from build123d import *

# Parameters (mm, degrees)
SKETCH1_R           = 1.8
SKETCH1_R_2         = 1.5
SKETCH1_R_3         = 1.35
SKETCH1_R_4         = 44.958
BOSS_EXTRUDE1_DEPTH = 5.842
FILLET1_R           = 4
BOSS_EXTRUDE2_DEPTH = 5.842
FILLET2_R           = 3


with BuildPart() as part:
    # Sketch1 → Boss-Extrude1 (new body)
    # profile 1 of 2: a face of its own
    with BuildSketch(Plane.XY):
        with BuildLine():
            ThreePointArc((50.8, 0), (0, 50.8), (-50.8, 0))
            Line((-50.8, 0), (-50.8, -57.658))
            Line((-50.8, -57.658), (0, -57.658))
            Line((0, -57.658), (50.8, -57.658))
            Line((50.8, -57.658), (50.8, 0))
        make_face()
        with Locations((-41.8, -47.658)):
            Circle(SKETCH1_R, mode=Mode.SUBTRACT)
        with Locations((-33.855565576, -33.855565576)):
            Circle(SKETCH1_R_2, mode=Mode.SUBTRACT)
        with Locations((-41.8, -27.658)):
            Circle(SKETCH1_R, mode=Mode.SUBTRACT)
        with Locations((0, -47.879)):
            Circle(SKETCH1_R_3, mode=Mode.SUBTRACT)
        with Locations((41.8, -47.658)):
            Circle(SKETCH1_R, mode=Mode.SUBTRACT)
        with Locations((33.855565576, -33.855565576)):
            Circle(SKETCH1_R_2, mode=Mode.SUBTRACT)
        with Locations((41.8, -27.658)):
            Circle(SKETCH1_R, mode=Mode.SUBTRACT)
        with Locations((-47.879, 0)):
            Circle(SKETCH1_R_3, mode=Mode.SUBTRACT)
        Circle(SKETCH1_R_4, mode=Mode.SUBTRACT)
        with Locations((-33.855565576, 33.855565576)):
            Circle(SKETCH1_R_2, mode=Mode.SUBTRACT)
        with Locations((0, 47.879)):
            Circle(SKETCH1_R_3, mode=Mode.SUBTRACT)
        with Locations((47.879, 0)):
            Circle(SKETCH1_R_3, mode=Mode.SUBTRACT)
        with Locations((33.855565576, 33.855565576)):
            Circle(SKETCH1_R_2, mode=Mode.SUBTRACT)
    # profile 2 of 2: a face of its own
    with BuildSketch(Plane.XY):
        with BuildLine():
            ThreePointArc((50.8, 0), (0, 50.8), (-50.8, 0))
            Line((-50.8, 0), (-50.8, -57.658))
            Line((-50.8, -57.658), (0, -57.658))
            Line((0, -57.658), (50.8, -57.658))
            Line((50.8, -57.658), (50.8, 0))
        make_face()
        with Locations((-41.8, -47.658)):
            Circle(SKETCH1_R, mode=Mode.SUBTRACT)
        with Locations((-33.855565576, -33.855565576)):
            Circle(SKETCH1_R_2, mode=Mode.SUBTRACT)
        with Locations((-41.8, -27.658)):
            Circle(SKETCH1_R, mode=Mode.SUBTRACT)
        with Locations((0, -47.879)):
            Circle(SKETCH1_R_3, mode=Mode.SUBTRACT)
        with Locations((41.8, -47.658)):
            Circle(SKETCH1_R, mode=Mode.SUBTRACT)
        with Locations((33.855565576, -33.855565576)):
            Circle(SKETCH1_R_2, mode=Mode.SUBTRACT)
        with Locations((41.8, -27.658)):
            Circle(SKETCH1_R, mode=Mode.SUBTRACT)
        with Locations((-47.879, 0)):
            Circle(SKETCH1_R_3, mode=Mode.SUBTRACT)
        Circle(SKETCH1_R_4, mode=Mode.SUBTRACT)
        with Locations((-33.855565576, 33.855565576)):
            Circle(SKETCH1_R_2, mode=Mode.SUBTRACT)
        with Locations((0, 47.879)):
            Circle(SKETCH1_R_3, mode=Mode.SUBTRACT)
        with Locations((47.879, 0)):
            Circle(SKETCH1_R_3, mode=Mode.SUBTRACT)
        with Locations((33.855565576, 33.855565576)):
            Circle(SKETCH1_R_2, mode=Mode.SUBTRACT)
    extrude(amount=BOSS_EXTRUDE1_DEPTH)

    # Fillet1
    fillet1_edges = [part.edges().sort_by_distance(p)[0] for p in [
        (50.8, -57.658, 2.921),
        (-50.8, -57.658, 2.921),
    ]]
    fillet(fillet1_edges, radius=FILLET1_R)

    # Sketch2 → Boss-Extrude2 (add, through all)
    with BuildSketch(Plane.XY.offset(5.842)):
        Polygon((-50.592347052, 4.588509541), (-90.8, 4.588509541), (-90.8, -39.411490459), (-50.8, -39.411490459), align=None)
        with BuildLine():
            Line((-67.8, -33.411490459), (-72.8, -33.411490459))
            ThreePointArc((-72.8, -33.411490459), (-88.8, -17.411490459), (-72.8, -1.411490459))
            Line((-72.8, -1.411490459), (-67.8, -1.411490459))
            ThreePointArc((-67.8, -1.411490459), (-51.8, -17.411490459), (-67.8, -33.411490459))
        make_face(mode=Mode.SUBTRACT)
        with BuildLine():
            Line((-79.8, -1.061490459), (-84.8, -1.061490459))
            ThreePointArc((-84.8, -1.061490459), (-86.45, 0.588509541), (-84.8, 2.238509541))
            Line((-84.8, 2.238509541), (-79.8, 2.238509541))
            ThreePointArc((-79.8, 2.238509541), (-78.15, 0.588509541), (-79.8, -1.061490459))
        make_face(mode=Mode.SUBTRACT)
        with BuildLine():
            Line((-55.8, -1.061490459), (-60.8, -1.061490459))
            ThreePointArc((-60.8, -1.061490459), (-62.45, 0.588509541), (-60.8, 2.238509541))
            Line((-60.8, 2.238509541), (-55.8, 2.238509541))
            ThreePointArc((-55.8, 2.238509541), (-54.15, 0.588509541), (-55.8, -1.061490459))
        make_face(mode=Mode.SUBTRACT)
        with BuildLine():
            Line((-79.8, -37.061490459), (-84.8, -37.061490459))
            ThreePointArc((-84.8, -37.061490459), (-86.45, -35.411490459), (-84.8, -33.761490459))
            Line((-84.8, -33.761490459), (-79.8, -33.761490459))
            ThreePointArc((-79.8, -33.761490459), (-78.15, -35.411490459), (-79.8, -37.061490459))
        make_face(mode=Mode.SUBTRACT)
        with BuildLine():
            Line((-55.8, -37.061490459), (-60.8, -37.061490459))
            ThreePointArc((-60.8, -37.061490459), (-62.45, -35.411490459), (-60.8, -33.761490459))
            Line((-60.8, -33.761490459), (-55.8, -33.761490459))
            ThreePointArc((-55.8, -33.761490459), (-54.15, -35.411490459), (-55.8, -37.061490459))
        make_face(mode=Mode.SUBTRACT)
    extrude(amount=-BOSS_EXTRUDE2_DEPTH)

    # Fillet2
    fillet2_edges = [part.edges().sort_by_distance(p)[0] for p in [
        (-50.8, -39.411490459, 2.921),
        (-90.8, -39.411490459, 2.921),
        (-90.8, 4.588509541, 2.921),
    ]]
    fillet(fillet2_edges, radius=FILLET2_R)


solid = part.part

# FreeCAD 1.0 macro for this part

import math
import FreeCAD as App
import Part
import Sketcher
from FreeCAD import Vector
Q = App.Units.Quantity


def edges_at(feature, points):
    """Names of the edges that pass closest to the given points."""
    edges = feature.Shape.Edges
    near = lambda p: min(range(len(edges)), key=lambda i: edges[i].distToShape(Part.Vertex(*p))[0])
    return sorted({f"Edge{near(p) + 1}" for p in points})

doc = App.newDocument("Part")
body = doc.addObject("PartDesign::Body", "Body")

# Sketch on XY plane
sketch1 = body.newObject("Sketcher::SketchObject", "Sketch")
sketch1.AttachmentSupport = (doc.getObject("XY_Plane"), [""])
sketch1.MapMode = "FlatFace"
sketch1.addGeometry([
    Part.ArcOfCircle(Part.Circle(Vector(0, 0, 0), Vector(0, 0, 1), 50.8), math.radians(0), math.radians(180)),  # 0
    Part.LineSegment(Vector(-50.8, 0, 0), Vector(-50.8, -57.658, 0)),  # 1
    Part.LineSegment(Vector(-50.8, -57.658, 0), Vector(50.8, -57.658, 0)),  # 2
    Part.LineSegment(Vector(50.8, -57.658, 0), Vector(50.8, 0, 0)),  # 3
    Part.Circle(Vector(-41.8, -47.658, 0), Vector(0, 0, 1), 1.8),  # 4
    Part.Circle(Vector(-41.8, -27.658, 0), Vector(0, 0, 1), 1.8),  # 5
    Part.Circle(Vector(-33.855566, -33.855566, 0), Vector(0, 0, 1), 1.5),  # 6
    Part.Circle(Vector(0, -47.879, 0), Vector(0, 0, 1), 1.35),  # 7
    Part.Circle(Vector(41.8, -47.658, 0), Vector(0, 0, 1), 1.8),  # 8
    Part.Circle(Vector(33.855566, -33.855566, 0), Vector(0, 0, 1), 1.5),  # 9
    Part.Circle(Vector(41.8, -27.658, 0), Vector(0, 0, 1), 1.8),  # 10
    Part.Circle(Vector(-47.879, 0, 0), Vector(0, 0, 1), 1.35),  # 11
    Part.Circle(Vector(-33.855566, 33.855566, 0), Vector(0, 0, 1), 1.5),  # 12
    Part.Circle(Vector(0, 0, 0), Vector(0, 0, 1), 44.958),  # 13
    Part.Circle(Vector(47.879, 0, 0), Vector(0, 0, 1), 1.35),  # 14
    Part.Circle(Vector(0, 47.879, 0), Vector(0, 0, 1), 1.35),  # 15
    Part.Circle(Vector(33.855566, 33.855566, 0), Vector(0, 0, 1), 1.5),  # 16
], False)
sketch1.addConstraint([
    Sketcher.Constraint("Tangent", 0, 2, 1, 1),
    Sketcher.Constraint("Coincident", 1, 2, 2, 1),
    Sketcher.Constraint("Coincident", 2, 2, 3, 1),
    Sketcher.Constraint("Tangent", 3, 2, 0, 1),
    Sketcher.Constraint("Vertical", 1),
    Sketcher.Constraint("Horizontal", 2),
    Sketcher.Constraint("Vertical", 3),
    Sketcher.Constraint("Coincident", 0, 3, -1, 1),
    Sketcher.Constraint("Coincident", 13, 3, -1, 1),
    Sketcher.Constraint("Equal", 4, 5),
    Sketcher.Constraint("Equal", 5, 8),
    Sketcher.Constraint("Equal", 6, 9),
    Sketcher.Constraint("Equal", 8, 10),
    Sketcher.Constraint("Equal", 7, 11),
    Sketcher.Constraint("Equal", 9, 12),
    Sketcher.Constraint("Equal", 11, 14),
    Sketcher.Constraint("Equal", 14, 15),
    Sketcher.Constraint("Equal", 12, 16),
    Sketcher.Constraint("Symmetric", 9, 3, 12, 3, -1, 1),
    Sketcher.Constraint("Symmetric", 11, 3, 14, 3, -1, 1),
    Sketcher.Constraint("Symmetric", 7, 3, 15, 3, -1, 1),
    Sketcher.Constraint("Symmetric", 6, 3, 16, 3, -1, 1),
    Sketcher.Constraint("Symmetric", 4, 3, 8, 3, -2),
    Sketcher.Constraint("Symmetric", 6, 3, 9, 3, -2),
    Sketcher.Constraint("Symmetric", 5, 3, 10, 3, -2),
    Sketcher.Constraint("PointOnObject", 7, 3, -2),
    Sketcher.Constraint("PointOnObject", 11, 3, -1),
    Sketcher.Constraint("Vertical", 4, 3, 5, 3),
    Sketcher.Constraint("Diameter", 6, Q("3 mm")),
    Sketcher.Constraint("Diameter", 4, Q("3.6 mm")),
    Sketcher.Constraint("Diameter", 7, Q("2.7 mm")),
    Sketcher.Constraint("Radius", 0, Q("50.8 mm")),
    Sketcher.Constraint("Diameter", 13, Q("89.916 mm")),
    Sketcher.Constraint("DistanceY", 4, 3, 5, 3, Q("20 mm")),
    Sketcher.Constraint("DistanceX", 0, 2, 5, 3, Q("9 mm")),
    Sketcher.Constraint("DistanceY", 1, 2, 4, 3, Q("10 mm")),
    Sketcher.Constraint("DistanceY", 1, 2, 1, 1, Q("57.658 mm")),
    Sketcher.Constraint("DistanceY", 7, 3, -1, 1, Q("47.879 mm")),
    Sketcher.Constraint("DistanceX", 11, 3, -1, 1, Q("47.879 mm")),
    Sketcher.Constraint("DistanceX", 6, 3, 9, 3, Q("67.711131 mm")),
    Sketcher.Constraint("DistanceY", 6, 3, 12, 3, Q("67.711131 mm")),
])
pad1 = body.newObject("PartDesign::Pad", "Pad")
pad1.Profile = sketch1
pad1.Length = 5.842
doc.recompute()

fillet = body.newObject("PartDesign::Fillet", "Fillet")
fillet.Base = (pad1, edges_at(pad1, [(50.8, -57.658, 2.921), (-50.8, -57.658, 2.921)]))
fillet.Radius = 4

# Sketch on XY plane
sketch2 = body.newObject("Sketcher::SketchObject", "Sketch001")
sketch2.AttachmentSupport = (doc.getObject("XY_Plane"), [""])
sketch2.MapMode = "FlatFace"
sketch2.AttachmentOffset = App.Placement(Vector(0, 0, 5.842), App.Rotation())
sketch2.addGeometry([
    Part.LineSegment(Vector(-50.592347, 4.58851, 0), Vector(-90.8, 4.58851, 0)),  # 0
    Part.LineSegment(Vector(-90.8, 4.58851, 0), Vector(-90.8, -39.41149, 0)),  # 1
    Part.LineSegment(Vector(-90.8, -39.41149, 0), Vector(-50.8, -39.41149, 0)),  # 2
    Part.LineSegment(Vector(-50.8, -39.41149, 0), Vector(-50.592347, 4.58851, 0)),  # 3
    Part.ArcOfCircle(Part.Circle(Vector(-79.8, -35.41149, 0), Vector(0, 0, 1), 1.65), math.radians(-90), math.radians(90)),  # 4
    Part.LineSegment(Vector(-79.8, -37.06149, 0), Vector(-84.8, -37.06149, 0)),  # 5
    Part.ArcOfCircle(Part.Circle(Vector(-84.8, -35.41149, 0), Vector(0, 0, 1), 1.65), math.radians(90), math.radians(270)),  # 6
    Part.LineSegment(Vector(-84.8, -33.76149, 0), Vector(-79.8, -33.76149, 0)),  # 7
    Part.ArcOfCircle(Part.Circle(Vector(-55.8, -35.41149, 0), Vector(0, 0, 1), 1.65), math.radians(-90), math.radians(90)),  # 8
    Part.LineSegment(Vector(-55.8, -37.06149, 0), Vector(-60.8, -37.06149, 0)),  # 9
    Part.ArcOfCircle(Part.Circle(Vector(-60.8, -35.41149, 0), Vector(0, 0, 1), 1.65), math.radians(90), math.radians(270)),  # 10
    Part.LineSegment(Vector(-60.8, -33.76149, 0), Vector(-55.8, -33.76149, 0)),  # 11
    Part.ArcOfCircle(Part.Circle(Vector(-79.8, 0.58851, 0), Vector(0, 0, 1), 1.65), math.radians(-90), math.radians(90)),  # 12
    Part.LineSegment(Vector(-79.8, -1.06149, 0), Vector(-84.8, -1.06149, 0)),  # 13
    Part.ArcOfCircle(Part.Circle(Vector(-84.8, 0.58851, 0), Vector(0, 0, 1), 1.65), math.radians(90), math.radians(270)),  # 14
    Part.LineSegment(Vector(-84.8, 2.23851, 0), Vector(-79.8, 2.23851, 0)),  # 15
    Part.ArcOfCircle(Part.Circle(Vector(-67.8, -17.41149, 0), Vector(0, 0, 1), 16), math.radians(-90), math.radians(90)),  # 16
    Part.LineSegment(Vector(-67.8, -33.41149, 0), Vector(-72.8, -33.41149, 0)),  # 17
    Part.ArcOfCircle(Part.Circle(Vector(-72.8, -17.41149, 0), Vector(0, 0, 1), 16), math.radians(90), math.radians(270)),  # 18
    Part.LineSegment(Vector(-72.8, -1.41149, 0), Vector(-67.8, -1.41149, 0)),  # 19
    Part.ArcOfCircle(Part.Circle(Vector(-55.8, 0.58851, 0), Vector(0, 0, 1), 1.65), math.radians(-90), math.radians(90)),  # 20
    Part.LineSegment(Vector(-55.8, -1.06149, 0), Vector(-60.8, -1.06149, 0)),  # 21
    Part.ArcOfCircle(Part.Circle(Vector(-60.8, 0.58851, 0), Vector(0, 0, 1), 1.65), math.radians(90), math.radians(270)),  # 22
    Part.LineSegment(Vector(-60.8, 2.23851, 0), Vector(-55.8, 2.23851, 0)),  # 23
], False)
sketch2.addConstraint([
    Sketcher.Constraint("Coincident", 0, 2, 1, 1),
    Sketcher.Constraint("Coincident", 1, 2, 2, 1),
    Sketcher.Constraint("Coincident", 2, 2, 3, 1),
    Sketcher.Constraint("Coincident", 3, 2, 0, 1),
    Sketcher.Constraint("Tangent", 4, 1, 5, 1),
    Sketcher.Constraint("Tangent", 5, 2, 6, 2),
    Sketcher.Constraint("Tangent", 6, 1, 7, 1),
    Sketcher.Constraint("Tangent", 7, 2, 4, 2),
    Sketcher.Constraint("Tangent", 8, 1, 9, 1),
    Sketcher.Constraint("Tangent", 9, 2, 10, 2),
    Sketcher.Constraint("Tangent", 10, 1, 11, 1),
    Sketcher.Constraint("Tangent", 11, 2, 8, 2),
    Sketcher.Constraint("Tangent", 12, 1, 13, 1),
    Sketcher.Constraint("Tangent", 13, 2, 14, 2),
    Sketcher.Constraint("Tangent", 14, 1, 15, 1),
    Sketcher.Constraint("Tangent", 15, 2, 12, 2),
    Sketcher.Constraint("Tangent", 16, 1, 17, 1),
    Sketcher.Constraint("Tangent", 17, 2, 18, 2),
    Sketcher.Constraint("Tangent", 18, 1, 19, 1),
    Sketcher.Constraint("Tangent", 19, 2, 16, 2),
    Sketcher.Constraint("Tangent", 20, 1, 21, 1),
    Sketcher.Constraint("Tangent", 21, 2, 22, 2),
    Sketcher.Constraint("Tangent", 22, 1, 23, 1),
    Sketcher.Constraint("Tangent", 23, 2, 20, 2),
    Sketcher.Constraint("Horizontal", 0),
    Sketcher.Constraint("Vertical", 1),
    Sketcher.Constraint("Horizontal", 2),
    Sketcher.Constraint("Horizontal", 5),
    Sketcher.Constraint("Horizontal", 7),
    Sketcher.Constraint("Horizontal", 9),
    Sketcher.Constraint("Horizontal", 11),
    Sketcher.Constraint("Horizontal", 13),
    Sketcher.Constraint("Horizontal", 15),
    Sketcher.Constraint("Horizontal", 17),
    Sketcher.Constraint("Horizontal", 19),
    Sketcher.Constraint("Horizontal", 21),
    Sketcher.Constraint("Horizontal", 23),
    Sketcher.Constraint("Equal", 6, 8),
    Sketcher.Constraint("Equal", 10, 12),
    Sketcher.Constraint("Equal", 14, 20),
    Sketcher.Constraint("Horizontal", 6, 3, 8, 3),
    Sketcher.Constraint("Horizontal", 14, 3, 20, 3),
    Sketcher.Constraint("Vertical", 4, 3, 12, 3),
    Sketcher.Constraint("Vertical", 6, 3, 14, 3),
    Sketcher.Constraint("Vertical", 8, 3, 20, 3),
    Sketcher.Constraint("Vertical", 10, 3, 22, 3),
    Sketcher.Constraint("Equal", 7, 9),
    Sketcher.Constraint("Equal", 15, 17),
    Sketcher.Constraint("Radius", 16, Q("16 mm")),
    Sketcher.Constraint("DistanceX", 2, 1, 2, 2, Q("40 mm")),
    Sketcher.Constraint("DistanceX", 5, 2, 5, 1, Q("5 mm")),
    Sketcher.Constraint("DistanceY", 1, 2, 1, 1, Q("44 mm")),
    Sketcher.Constraint("Radius", 4, Q("1.65 mm")),
    Sketcher.Constraint("DistanceX", 4, 3, 8, 3, Q("24 mm")),
    Sketcher.Constraint("DistanceY", 4, 3, 12, 3, Q("36 mm")),
    Sketcher.Constraint("DistanceX", 16, 3, 10, 3, Q("7 mm")),
    Sketcher.Constraint("DistanceY", 10, 3, 16, 3, Q("18 mm")),
    Sketcher.Constraint("DistanceX", 0, 2, 14, 3, Q("6 mm")),
    Sketcher.Constraint("DistanceY", 14, 3, 0, 2, Q("4 mm")),
    Sketcher.Constraint("DistanceX", 4, 3, -1, 1, Q("79.8 mm")),
    Sketcher.Constraint("Distance", 3, Q("44.00049 mm")),
    Sketcher.Constraint("DistanceY", 4, 3, -1, 1, Q("35.41149 mm")),
])
pad2 = body.newObject("PartDesign::Pad", "Pad001")
pad2.Profile = sketch2
pad2.Length = 5.842
pad2.Reversed = True
doc.recompute()

fillet2 = body.newObject("PartDesign::Fillet", "Fillet001")
fillet2.Base = (pad2, edges_at(pad2, [(-50.8, -39.411, 2.921), (-90.8, -39.411, 2.921), (-90.8, 4.589, 2.921)]))
fillet2.Radius = 3

doc.recompute()
